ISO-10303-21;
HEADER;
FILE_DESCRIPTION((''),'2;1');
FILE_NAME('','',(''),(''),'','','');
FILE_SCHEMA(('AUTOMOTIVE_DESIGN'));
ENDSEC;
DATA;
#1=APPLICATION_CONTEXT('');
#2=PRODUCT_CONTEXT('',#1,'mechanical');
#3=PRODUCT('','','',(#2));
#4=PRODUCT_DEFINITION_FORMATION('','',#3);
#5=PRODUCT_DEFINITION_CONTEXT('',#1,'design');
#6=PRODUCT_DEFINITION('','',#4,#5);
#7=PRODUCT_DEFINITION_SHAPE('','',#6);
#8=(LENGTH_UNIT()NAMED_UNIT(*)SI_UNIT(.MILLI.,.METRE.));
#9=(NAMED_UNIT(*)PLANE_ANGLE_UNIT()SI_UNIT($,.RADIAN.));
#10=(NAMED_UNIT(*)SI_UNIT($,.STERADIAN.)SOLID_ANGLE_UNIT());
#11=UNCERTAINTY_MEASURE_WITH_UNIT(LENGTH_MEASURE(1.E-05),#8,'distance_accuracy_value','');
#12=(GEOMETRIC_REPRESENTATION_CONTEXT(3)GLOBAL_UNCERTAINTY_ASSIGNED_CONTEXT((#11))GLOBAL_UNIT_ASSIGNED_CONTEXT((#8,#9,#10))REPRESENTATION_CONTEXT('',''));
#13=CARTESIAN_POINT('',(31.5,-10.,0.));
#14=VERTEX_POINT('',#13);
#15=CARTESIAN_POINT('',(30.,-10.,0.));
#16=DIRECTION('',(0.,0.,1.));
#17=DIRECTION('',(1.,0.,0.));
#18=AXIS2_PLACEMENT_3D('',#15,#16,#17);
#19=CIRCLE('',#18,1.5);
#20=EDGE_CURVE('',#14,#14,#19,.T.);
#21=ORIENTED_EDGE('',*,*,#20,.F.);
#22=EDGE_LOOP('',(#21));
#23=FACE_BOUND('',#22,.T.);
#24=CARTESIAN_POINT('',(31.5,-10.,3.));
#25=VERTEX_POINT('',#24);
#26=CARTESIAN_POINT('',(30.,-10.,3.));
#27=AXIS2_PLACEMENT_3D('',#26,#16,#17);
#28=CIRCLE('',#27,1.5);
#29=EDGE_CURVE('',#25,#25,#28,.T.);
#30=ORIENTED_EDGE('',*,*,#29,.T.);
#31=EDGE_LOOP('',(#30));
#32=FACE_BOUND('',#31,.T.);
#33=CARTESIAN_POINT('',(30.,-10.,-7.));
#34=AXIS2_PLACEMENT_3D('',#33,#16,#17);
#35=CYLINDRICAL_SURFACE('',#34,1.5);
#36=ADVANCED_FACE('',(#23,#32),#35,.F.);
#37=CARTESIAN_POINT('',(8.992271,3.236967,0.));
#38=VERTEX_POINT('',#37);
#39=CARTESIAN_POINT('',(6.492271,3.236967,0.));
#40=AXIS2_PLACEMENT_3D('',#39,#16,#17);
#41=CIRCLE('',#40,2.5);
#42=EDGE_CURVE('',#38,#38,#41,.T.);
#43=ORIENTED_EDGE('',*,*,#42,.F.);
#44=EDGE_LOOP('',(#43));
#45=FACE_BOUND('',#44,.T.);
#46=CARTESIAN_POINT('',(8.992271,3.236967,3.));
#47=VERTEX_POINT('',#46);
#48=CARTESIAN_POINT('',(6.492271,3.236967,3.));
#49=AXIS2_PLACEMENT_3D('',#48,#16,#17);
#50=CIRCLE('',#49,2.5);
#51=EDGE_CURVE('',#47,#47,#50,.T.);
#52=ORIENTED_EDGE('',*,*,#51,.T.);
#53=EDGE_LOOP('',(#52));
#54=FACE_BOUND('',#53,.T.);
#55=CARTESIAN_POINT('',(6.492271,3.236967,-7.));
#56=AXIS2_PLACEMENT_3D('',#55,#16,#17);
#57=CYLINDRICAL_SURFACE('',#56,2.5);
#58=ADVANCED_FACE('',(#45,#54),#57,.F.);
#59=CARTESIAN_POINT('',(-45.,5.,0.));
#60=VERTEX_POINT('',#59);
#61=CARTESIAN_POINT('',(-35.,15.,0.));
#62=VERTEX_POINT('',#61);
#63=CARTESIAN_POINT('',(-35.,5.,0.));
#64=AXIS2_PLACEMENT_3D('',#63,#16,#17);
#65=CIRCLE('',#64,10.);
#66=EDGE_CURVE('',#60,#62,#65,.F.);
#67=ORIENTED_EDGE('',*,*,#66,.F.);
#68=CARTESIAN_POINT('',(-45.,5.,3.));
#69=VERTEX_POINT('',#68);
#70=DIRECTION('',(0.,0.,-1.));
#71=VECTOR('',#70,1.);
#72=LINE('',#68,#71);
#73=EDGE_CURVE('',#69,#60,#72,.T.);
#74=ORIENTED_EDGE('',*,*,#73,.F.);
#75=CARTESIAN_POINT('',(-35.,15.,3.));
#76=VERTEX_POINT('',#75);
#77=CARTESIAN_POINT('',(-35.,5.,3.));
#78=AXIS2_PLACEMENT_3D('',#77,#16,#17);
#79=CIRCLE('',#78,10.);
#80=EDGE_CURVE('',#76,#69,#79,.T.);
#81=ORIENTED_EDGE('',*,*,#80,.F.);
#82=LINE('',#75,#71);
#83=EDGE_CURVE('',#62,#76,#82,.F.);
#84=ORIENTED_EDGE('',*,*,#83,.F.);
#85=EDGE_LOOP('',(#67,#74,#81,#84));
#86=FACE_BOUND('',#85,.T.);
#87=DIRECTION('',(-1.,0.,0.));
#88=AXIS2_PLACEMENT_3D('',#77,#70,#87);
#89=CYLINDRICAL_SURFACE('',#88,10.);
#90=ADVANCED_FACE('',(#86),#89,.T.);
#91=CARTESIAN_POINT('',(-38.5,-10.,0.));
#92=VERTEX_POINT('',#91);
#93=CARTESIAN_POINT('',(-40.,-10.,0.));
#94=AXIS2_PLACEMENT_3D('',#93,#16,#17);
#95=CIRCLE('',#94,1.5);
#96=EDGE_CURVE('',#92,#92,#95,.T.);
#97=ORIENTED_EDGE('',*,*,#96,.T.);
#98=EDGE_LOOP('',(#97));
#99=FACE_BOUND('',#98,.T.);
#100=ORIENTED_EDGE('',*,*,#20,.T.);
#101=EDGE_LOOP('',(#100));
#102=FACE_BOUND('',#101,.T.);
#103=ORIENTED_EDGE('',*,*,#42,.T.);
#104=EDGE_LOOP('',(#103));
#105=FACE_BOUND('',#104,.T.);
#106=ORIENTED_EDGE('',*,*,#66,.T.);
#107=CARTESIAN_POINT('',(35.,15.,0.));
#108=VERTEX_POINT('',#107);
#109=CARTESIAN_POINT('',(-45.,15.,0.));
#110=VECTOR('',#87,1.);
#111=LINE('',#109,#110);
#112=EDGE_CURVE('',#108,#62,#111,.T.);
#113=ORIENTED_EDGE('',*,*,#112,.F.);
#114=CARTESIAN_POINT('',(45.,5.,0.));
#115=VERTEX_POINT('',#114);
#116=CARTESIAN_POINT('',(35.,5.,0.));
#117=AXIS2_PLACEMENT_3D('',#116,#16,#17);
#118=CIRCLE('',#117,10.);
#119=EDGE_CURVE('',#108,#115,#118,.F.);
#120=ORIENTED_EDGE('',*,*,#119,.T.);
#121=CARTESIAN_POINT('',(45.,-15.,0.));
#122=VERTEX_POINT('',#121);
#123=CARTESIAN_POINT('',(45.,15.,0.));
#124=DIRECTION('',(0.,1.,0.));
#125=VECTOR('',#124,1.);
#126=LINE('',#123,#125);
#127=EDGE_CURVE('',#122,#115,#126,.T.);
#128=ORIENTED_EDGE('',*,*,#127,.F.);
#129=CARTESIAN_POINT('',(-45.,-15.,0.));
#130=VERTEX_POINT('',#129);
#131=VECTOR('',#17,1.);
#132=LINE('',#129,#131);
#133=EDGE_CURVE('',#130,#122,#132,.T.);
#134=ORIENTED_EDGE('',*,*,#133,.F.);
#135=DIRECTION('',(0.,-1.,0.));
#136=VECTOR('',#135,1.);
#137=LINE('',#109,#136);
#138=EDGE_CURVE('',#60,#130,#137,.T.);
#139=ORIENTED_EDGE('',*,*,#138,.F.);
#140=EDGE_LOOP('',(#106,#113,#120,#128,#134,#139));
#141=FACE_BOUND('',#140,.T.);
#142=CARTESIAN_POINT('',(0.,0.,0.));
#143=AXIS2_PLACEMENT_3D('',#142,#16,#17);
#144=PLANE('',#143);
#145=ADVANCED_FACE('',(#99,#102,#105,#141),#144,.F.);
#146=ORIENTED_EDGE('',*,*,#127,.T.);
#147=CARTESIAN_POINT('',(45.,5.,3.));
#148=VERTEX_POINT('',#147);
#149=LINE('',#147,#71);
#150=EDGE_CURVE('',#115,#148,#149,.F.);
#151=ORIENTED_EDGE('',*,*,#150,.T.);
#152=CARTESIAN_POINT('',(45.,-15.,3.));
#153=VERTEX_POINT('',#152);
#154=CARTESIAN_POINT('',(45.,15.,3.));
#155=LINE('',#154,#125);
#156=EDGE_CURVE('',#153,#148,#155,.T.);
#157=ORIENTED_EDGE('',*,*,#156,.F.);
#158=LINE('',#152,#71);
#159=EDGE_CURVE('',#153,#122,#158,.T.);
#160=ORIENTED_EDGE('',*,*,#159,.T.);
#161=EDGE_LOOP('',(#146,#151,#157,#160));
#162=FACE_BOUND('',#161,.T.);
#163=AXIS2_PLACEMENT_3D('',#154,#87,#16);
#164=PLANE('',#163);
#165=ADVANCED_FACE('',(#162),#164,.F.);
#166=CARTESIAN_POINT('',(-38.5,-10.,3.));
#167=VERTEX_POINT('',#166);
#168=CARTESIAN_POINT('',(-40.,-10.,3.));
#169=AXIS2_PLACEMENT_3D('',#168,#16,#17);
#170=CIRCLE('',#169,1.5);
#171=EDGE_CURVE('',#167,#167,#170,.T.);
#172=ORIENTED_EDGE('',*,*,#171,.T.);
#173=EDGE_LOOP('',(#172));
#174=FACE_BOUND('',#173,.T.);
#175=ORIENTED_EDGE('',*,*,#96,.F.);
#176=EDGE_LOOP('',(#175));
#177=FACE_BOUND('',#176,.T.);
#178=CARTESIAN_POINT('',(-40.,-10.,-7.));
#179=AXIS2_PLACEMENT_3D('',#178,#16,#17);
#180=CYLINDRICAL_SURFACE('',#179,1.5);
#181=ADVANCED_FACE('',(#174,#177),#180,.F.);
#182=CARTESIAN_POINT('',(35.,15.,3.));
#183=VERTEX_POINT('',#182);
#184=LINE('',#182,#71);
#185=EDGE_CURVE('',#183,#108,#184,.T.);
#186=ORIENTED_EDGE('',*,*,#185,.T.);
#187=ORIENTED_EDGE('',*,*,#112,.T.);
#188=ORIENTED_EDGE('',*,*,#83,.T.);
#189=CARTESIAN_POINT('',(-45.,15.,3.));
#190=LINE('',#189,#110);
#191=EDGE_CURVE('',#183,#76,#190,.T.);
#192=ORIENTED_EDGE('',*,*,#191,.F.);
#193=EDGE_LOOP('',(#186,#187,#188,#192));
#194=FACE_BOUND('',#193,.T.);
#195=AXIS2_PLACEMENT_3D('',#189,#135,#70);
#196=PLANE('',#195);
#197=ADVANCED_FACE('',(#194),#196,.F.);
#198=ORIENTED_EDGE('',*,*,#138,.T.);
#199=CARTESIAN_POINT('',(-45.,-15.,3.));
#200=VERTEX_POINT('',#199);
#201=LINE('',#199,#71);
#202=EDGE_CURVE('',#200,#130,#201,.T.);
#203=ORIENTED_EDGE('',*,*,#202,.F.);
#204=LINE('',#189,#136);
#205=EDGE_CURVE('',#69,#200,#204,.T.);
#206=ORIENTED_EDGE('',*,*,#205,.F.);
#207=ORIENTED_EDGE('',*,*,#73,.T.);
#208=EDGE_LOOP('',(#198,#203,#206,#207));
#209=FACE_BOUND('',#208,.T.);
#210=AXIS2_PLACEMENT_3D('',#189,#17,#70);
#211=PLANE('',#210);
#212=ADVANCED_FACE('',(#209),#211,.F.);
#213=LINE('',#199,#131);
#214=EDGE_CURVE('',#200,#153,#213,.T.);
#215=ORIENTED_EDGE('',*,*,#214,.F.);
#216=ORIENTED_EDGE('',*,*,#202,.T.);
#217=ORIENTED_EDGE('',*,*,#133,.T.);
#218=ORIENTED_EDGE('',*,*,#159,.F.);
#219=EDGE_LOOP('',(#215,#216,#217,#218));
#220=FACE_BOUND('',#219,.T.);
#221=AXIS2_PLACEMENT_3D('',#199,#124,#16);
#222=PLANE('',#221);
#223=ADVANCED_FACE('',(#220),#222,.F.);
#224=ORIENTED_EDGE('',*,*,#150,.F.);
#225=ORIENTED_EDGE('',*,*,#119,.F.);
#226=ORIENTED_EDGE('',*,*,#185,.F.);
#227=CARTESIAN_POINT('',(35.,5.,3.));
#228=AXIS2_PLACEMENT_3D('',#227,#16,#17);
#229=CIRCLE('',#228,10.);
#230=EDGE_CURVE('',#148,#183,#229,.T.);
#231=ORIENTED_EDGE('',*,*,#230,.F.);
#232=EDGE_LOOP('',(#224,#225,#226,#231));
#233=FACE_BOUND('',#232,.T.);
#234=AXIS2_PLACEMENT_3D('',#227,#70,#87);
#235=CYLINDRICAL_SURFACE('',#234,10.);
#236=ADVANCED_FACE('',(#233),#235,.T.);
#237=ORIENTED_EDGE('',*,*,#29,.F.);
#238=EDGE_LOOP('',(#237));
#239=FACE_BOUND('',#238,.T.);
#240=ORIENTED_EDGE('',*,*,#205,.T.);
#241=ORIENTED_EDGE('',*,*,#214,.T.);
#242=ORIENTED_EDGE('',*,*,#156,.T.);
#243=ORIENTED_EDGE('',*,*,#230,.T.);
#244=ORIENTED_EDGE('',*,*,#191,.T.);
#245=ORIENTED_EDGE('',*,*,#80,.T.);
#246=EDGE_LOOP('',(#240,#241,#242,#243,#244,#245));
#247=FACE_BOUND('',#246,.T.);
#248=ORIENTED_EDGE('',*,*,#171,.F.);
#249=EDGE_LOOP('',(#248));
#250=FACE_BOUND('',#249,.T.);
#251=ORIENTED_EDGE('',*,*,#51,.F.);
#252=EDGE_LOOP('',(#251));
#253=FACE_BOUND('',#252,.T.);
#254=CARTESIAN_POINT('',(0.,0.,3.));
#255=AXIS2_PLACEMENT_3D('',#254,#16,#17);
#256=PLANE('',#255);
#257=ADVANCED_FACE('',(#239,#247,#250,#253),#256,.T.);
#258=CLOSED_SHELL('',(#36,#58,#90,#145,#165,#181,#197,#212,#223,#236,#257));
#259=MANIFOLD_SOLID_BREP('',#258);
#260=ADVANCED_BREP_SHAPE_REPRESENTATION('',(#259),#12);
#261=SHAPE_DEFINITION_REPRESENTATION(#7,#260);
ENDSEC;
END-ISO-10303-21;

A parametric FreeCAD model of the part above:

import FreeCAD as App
import Part
import Sketcher
from FreeCAD import Vector


def edges_at(feature, points):
    """Names of the edges that pass closest to the given points."""
    edges = feature.Shape.Edges
    near = lambda p: min(range(len(edges)), key=lambda i: edges[i].distToShape(Part.Vertex(*p))[0])
    return sorted({f"Edge{near(p) + 1}" for p in points})


def add_polygon(sketch, points):
    """Adds a closed chain of lines whose ends are joined by coincident constraints."""
    first, n = sketch.GeometryCount, len(points)
    for a, b in zip(points, points[1:] + points[:1]):
        sketch.addGeometry(Part.LineSegment(App.Vector(*a, 0), App.Vector(*b, 0)), False)
    for i in range(n):
        sketch.addConstraint(Sketcher.Constraint("Coincident", first + i, 2, first + (i + 1) % n, 1))

doc = App.newDocument("Part")
body = doc.addObject("PartDesign::Body", "Body")

# Sketch on XY plane
sketch1 = body.newObject("Sketcher::SketchObject", "Sketch")
sketch1.AttachmentSupport = (doc.getObject("XY_Plane"), [""])
sketch1.MapMode = "FlatFace"
add_polygon(sketch1, [(-45, 15), (-45, -15), (45, -15), (45, 15)])  # lines 0-3
sketch1.addConstraint(Sketcher.Constraint("Vertical", 0))
sketch1.addConstraint(Sketcher.Constraint("Horizontal", 1))
sketch1.addConstraint(Sketcher.Constraint("Vertical", 2))
sketch1.addConstraint(Sketcher.Constraint("Horizontal", 3))
sketch1.addConstraint(Sketcher.Constraint("Symmetric", 0, 2, 2, 2, -1, 1))
sketch1.addConstraint(Sketcher.Constraint("DistanceX", 1, 1, 1, 2, 90.0))
sketch1.addConstraint(Sketcher.Constraint("DistanceY", 0, 2, 0, 1, 30.0))
pad1 = body.newObject("PartDesign::Pad", "Pad")
pad1.Profile = sketch1
pad1.Length = 3

# Sketch on XY plane
sketch2 = body.newObject("Sketcher::SketchObject", "Sketch001")
sketch2.AttachmentSupport = (doc.getObject("XY_Plane"), [""])
sketch2.MapMode = "FlatFace"
sketch2.AttachmentOffset = App.Placement(Vector(0, 0, 3), App.Rotation())
sketch2.addGeometry(Part.Circle(Vector(6.5, 3.2, 0), Vector(0, 0, 1), 2.5), False)
sketch2.addConstraint(Sketcher.Constraint("Diameter", 0, 5.0))
sketch2.addConstraint(Sketcher.Constraint("DistanceX", -1, 1, 0, 3, 6.492271))
sketch2.addConstraint(Sketcher.Constraint("DistanceY", -1, 1, 0, 3, 3.236967))
pocket1 = body.newObject("PartDesign::Pocket", "Pocket")
pocket1.Profile = sketch2
pocket1.Length = 10

# Sketch on XY plane
sketch3 = body.newObject("Sketcher::SketchObject", "Sketch002")
sketch3.AttachmentSupport = (doc.getObject("XY_Plane"), [""])
sketch3.MapMode = "FlatFace"
sketch3.AttachmentOffset = App.Placement(Vector(0, 0, 3), App.Rotation())
sketch3.addGeometry(Part.Circle(Vector(-40, -10, 0), Vector(0, 0, 1), 1.5), False)
sketch3.addGeometry(Part.Circle(Vector(30, -10, 0), Vector(0, 0, 1), 1.5), False)
sketch3.addConstraint(Sketcher.Constraint("Equal", 0, 1))
sketch3.addConstraint(Sketcher.Constraint("Horizontal", 0, 3, 1, 3))
sketch3.addConstraint(Sketcher.Constraint("Diameter", 0, 3.0))
sketch3.addConstraint(Sketcher.Constraint("DistanceX", 0, 3, -1, 1, 40.0))
sketch3.addConstraint(Sketcher.Constraint("DistanceY", 0, 3, -1, 1, 10.0))
sketch3.addConstraint(Sketcher.Constraint("DistanceX", -1, 1, 1, 3, 30.0))
pocket2 = body.newObject("PartDesign::Pocket", "Pocket001")
pocket2.Profile = sketch3
pocket2.Length = 10
doc.recompute()

fillet = body.newObject("PartDesign::Fillet", "Fillet")
fillet.Base = (pocket2, edges_at(pocket2, [(-45, 15, 1.5), (45, 15, 1.5)]))
fillet.Radius = 10

doc.recompute()
